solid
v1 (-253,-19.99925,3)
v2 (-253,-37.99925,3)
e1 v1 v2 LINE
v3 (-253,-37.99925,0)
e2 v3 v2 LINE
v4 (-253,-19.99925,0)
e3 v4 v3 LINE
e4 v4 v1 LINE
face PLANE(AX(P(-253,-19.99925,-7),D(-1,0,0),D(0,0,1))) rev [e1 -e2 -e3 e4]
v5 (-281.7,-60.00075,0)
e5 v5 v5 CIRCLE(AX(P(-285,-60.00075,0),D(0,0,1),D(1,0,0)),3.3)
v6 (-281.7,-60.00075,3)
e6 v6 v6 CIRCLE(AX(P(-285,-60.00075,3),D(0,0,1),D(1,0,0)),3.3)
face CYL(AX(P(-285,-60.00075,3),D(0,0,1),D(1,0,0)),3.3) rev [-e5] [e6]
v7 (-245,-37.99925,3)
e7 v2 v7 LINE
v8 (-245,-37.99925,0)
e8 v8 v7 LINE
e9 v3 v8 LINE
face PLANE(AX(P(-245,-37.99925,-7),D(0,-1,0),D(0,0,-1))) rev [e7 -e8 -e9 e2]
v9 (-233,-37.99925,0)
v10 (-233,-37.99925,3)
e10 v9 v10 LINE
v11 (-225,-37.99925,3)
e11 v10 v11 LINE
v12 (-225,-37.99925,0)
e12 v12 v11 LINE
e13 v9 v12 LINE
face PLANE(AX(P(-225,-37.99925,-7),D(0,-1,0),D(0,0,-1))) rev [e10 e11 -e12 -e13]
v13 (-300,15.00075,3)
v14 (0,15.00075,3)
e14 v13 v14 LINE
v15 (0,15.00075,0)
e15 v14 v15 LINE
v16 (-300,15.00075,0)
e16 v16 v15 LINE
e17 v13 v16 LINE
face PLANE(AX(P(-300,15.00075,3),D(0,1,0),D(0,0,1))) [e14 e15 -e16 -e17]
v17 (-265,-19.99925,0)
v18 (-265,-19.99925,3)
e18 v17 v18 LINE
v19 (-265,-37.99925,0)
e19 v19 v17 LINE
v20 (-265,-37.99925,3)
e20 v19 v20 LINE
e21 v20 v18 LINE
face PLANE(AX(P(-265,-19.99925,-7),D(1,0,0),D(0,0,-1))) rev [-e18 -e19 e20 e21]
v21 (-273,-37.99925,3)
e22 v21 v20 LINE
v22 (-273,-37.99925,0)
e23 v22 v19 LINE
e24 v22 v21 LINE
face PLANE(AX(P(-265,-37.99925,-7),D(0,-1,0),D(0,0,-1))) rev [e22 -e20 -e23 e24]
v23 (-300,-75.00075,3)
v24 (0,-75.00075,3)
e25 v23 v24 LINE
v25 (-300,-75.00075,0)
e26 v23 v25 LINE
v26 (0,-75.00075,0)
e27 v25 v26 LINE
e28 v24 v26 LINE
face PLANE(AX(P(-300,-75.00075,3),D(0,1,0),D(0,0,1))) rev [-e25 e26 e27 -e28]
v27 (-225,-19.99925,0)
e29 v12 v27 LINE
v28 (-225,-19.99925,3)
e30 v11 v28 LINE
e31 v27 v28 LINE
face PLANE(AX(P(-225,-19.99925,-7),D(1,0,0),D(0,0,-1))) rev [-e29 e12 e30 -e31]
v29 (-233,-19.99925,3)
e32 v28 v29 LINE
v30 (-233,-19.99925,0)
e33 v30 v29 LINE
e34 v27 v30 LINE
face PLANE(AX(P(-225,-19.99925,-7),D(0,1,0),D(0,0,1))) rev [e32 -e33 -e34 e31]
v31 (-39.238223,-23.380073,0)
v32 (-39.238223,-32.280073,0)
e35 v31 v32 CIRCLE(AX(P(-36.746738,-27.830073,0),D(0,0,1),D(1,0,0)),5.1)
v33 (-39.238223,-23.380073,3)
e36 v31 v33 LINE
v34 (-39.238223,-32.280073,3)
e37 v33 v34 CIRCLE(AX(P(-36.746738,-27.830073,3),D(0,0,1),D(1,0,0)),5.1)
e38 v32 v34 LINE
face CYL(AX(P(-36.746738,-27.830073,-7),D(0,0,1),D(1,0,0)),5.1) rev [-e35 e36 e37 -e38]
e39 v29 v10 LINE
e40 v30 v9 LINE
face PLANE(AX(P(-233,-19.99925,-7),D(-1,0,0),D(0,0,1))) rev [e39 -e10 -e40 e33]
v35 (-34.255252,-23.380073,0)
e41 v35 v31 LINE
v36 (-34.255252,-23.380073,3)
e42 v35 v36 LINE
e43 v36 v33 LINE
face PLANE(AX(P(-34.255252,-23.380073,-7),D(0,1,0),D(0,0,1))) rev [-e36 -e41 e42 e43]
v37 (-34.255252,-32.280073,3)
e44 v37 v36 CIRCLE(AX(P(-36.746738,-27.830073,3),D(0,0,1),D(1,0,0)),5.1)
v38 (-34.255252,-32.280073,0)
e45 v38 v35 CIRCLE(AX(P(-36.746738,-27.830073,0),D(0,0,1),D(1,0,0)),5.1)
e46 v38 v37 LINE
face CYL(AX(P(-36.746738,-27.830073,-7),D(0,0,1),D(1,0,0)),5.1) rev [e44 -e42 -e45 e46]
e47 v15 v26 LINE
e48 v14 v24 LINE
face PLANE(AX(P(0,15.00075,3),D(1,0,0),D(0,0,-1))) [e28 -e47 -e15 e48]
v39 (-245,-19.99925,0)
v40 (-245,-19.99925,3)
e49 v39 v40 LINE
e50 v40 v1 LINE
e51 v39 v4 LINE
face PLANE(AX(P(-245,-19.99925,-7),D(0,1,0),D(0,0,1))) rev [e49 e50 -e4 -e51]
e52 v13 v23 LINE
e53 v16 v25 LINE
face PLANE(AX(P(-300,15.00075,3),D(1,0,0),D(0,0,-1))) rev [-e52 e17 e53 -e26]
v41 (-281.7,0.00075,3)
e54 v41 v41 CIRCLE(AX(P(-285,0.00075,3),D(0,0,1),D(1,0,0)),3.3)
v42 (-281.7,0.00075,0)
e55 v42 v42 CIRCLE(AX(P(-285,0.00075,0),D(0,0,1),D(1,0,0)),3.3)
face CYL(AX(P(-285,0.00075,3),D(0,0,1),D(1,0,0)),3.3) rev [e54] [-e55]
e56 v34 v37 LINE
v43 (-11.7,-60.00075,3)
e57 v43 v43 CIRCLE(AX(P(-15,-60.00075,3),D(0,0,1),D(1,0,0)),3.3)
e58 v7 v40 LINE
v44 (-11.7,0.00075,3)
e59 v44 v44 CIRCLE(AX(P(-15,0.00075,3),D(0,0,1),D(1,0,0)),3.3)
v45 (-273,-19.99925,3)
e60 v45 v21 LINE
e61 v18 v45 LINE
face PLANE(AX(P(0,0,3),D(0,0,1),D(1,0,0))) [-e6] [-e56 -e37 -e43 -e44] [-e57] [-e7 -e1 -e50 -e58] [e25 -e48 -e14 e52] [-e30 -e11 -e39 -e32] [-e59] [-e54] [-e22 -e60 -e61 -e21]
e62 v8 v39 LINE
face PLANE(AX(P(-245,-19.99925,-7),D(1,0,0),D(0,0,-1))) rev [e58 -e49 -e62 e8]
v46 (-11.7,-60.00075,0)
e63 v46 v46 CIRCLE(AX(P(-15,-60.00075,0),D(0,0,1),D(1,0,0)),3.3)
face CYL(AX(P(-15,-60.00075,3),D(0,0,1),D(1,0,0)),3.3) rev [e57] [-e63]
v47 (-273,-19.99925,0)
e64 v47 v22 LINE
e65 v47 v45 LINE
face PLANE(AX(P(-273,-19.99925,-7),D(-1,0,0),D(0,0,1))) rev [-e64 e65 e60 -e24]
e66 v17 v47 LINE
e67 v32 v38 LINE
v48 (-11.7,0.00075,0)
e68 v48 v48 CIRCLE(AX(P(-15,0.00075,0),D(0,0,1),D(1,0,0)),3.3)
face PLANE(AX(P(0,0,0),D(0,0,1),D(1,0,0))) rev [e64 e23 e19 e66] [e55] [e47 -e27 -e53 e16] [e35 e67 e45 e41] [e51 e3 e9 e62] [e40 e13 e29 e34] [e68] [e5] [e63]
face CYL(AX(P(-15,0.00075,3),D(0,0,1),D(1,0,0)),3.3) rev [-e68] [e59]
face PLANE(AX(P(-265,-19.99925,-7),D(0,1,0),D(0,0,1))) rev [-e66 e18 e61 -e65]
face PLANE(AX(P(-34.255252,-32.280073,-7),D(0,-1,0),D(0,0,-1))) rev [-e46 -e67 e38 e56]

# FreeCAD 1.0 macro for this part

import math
import FreeCAD as App
import Part
import Sketcher

V = App.Vector
Q = App.Units.Quantity

doc = App.newDocument("Part")
params = doc.addObject("Spreadsheet::Sheet", "Params")
for row, (alias, value) in enumerate([
    ("sketch1_width", "300 mm"),
    ("pad1_length", "3 mm"),
    ("sketch2_diameter", "6.6 mm"),
    ("hole_diameter", "6.6 mm"),
    ("sketch3_width", "8 mm"),
    ("sketch3_height", "18 mm"),
    ("pocket1_length", "10 mm"),
    ("sketch4_radius", "5.1 mm"),
    ("pocket2_length", "10 mm"),
], start=1):
    params.set(f"A{row}", alias)
    params.set(f"B{row}", "=" + value)
    params.setAlias(f"B{row}", alias)

body = doc.addObject("PartDesign::Body", "Body")

# Sketch on XY plane
sketch1 = doc.addObject("Sketcher::SketchObject", "Sketch")
body.addObject(sketch1)
sketch1.AttachmentSupport = (doc.XY_Plane, [""])
sketch1.MapMode = "FlatFace"
sketch1.addGeometry([
    Part.LineSegment(V(-300, 15, 0), V(-300, -75, 0)),
    Part.LineSegment(V(-300, -75, 0), V(0, -75, 0)),
    Part.LineSegment(V(0, -75, 0), V(0, 15, 0)),
    Part.LineSegment(V(0, 15, 0), V(-300, 15, 0)),
], False)
sketch1.addConstraint([
    Sketcher.Constraint("Coincident", 0, 2, 1, 1),
    Sketcher.Constraint("Coincident", 1, 2, 2, 1),
    Sketcher.Constraint("Coincident", 2, 2, 3, 1),
    Sketcher.Constraint("Coincident", 3, 2, 0, 1),
    Sketcher.Constraint("Vertical", 0),
    Sketcher.Constraint("Horizontal", 1),
    Sketcher.Constraint("Vertical", 2),
    Sketcher.Constraint("Horizontal", 3),
    Sketcher.Constraint("PointOnObject", 1, 2, -2),
    Sketcher.Constraint("DistanceX", 1, 1, 1, 2, Q("300 mm")),
    Sketcher.Constraint("DistanceY", 0, 2, 0, 1, Q("90.0015 mm")),
    Sketcher.Constraint("DistanceY", 0, 2, -1, 1, Q("75.00075 mm")),
])
sketch1.setExpression("Constraints[9]", "Params.sketch1_width")
pad1 = doc.addObject("PartDesign::Pad", "Pad")
body.addObject(pad1)
pad1.Profile = sketch1
pad1.setExpression("Length", "Params.pad1_length")

# Sketch on XY plane
sketch2 = doc.addObject("Sketcher::SketchObject", "Sketch001")
body.addObject(sketch2)
sketch2.AttachmentSupport = (doc.XY_Plane, [""])
sketch2.MapMode = "FlatFace"
sketch2.AttachmentOffset = App.Placement(V(0, 0, 3), App.Rotation())
sketch2.addGeometry([
    Part.Circle(V(-15, 0, 0), V(0, 0, 1), 3.3),
    Part.Circle(V(-15, -60, 0), V(0, 0, 1), 3.3),
    Part.Circle(V(-285, -60, 0), V(0, 0, 1), 3.3),
    Part.Circle(V(-285, 0, 0), V(0, 0, 1), 3.3),
], False)
sketch2.addConstraint([
    Sketcher.Constraint("Equal", 0, 1),
    Sketcher.Constraint("Equal", 1, 2),
    Sketcher.Constraint("Equal", 2, 3),
    Sketcher.Constraint("Horizontal", 1, 3, 2, 3),
    Sketcher.Constraint("Horizontal", 0, 3, 3, 3),
    Sketcher.Constraint("Vertical", 0, 3, 1, 3),
    Sketcher.Constraint("Vertical", 2, 3, 3, 3),
    Sketcher.Constraint("Diameter", 0, Q("6.6 mm")),
    Sketcher.Constraint("DistanceX", 0, 3, -1, 1, Q("15 mm")),
    Sketcher.Constraint("DistanceX", 2, 3, -1, 1, Q("285 mm")),
    Sketcher.Constraint("DistanceY", 1, 3, 0, 3, Q("60.0015 mm")),
    Sketcher.Constraint("DistanceY", -1, 1, 0, 3, Q("0.00075 mm")),
])
sketch2.setExpression("Constraints[7]", "Params.sketch2_diameter")
doc.recompute()
hole = doc.addObject("PartDesign::Hole", "Hole")
body.addObject(hole)
hole.Profile = sketch2
hole.ThreadType = "None"
hole.setExpression("Diameter", "Params.hole_diameter")
hole.DepthType = "ThroughAll"

# Sketch on XY plane
sketch3 = doc.addObject("Sketcher::SketchObject", "Sketch002")
body.addObject(sketch3)
sketch3.AttachmentSupport = (doc.XY_Plane, [""])
sketch3.MapMode = "FlatFace"
sketch3.AttachmentOffset = App.Placement(V(0, 0, 3), App.Rotation())
sketch3.addGeometry([
    Part.LineSegment(V(-273, -20, 0), V(-273, -38, 0)),  # 0
    Part.LineSegment(V(-273, -38, 0), V(-265, -38, 0)),  # 1
    Part.LineSegment(V(-265, -38, 0), V(-265, -20, 0)),  # 2
    Part.LineSegment(V(-265, -20, 0), V(-273, -20, 0)),  # 3
    Part.LineSegment(V(-253, -20, 0), V(-253, -38, 0)),  # 4
    Part.LineSegment(V(-253, -38, 0), V(-245, -38, 0)),  # 5
    Part.LineSegment(V(-245, -38, 0), V(-245, -20, 0)),  # 6
    Part.LineSegment(V(-245, -20, 0), V(-253, -20, 0)),  # 7
    Part.LineSegment(V(-233, -20, 0), V(-233, -38, 0)),  # 8
    Part.LineSegment(V(-233, -38, 0), V(-225, -38, 0)),  # 9
    Part.LineSegment(V(-225, -38, 0), V(-225, -20, 0)),  # 10
    Part.LineSegment(V(-225, -20, 0), V(-233, -20, 0)),  # 11
], False)
sketch3.addConstraint([
    Sketcher.Constraint("Coincident", 0, 2, 1, 1),
    Sketcher.Constraint("Coincident", 1, 2, 2, 1),
    Sketcher.Constraint("Coincident", 2, 2, 3, 1),
    Sketcher.Constraint("Coincident", 3, 2, 0, 1),
    Sketcher.Constraint("Coincident", 4, 2, 5, 1),
    Sketcher.Constraint("Coincident", 5, 2, 6, 1),
    Sketcher.Constraint("Coincident", 6, 2, 7, 1),
    Sketcher.Constraint("Coincident", 7, 2, 4, 1),
    Sketcher.Constraint("Coincident", 8, 2, 9, 1),
    Sketcher.Constraint("Coincident", 9, 2, 10, 1),
    Sketcher.Constraint("Coincident", 10, 2, 11, 1),
    Sketcher.Constraint("Coincident", 11, 2, 8, 1),
    Sketcher.Constraint("Vertical", 0),
    Sketcher.Constraint("Horizontal", 1),
    Sketcher.Constraint("Vertical", 2),
    Sketcher.Constraint("Horizontal", 3),
    Sketcher.Constraint("Vertical", 4),
    Sketcher.Constraint("Horizontal", 5),
    Sketcher.Constraint("Vertical", 6),
    Sketcher.Constraint("Horizontal", 7),
    Sketcher.Constraint("Vertical", 8),
    Sketcher.Constraint("Horizontal", 9),
    Sketcher.Constraint("Vertical", 10),
    Sketcher.Constraint("Horizontal", 11),
    Sketcher.Constraint("Horizontal", 1, 2, 4, 2),
    Sketcher.Constraint("Horizontal", 3, 2, 6, 2),
    Sketcher.Constraint("Horizontal", 5, 2, 8, 2),
    Sketcher.Constraint("Horizontal", 7, 2, 10, 2),
    Sketcher.Constraint("Equal", 3, 5),
    Sketcher.Constraint("Equal", 7, 9),
    Sketcher.Constraint("DistanceX", 1, 1, 1, 2, Q("8 mm")),
    Sketcher.Constraint("DistanceY", 0, 2, 0, 1, Q("18 mm")),
    Sketcher.Constraint("DistanceX", 0, 2, -1, 1, Q("273 mm")),
    Sketcher.Constraint("DistanceX", 4, 2, -1, 1, Q("253 mm")),
    Sketcher.Constraint("DistanceX", 8, 2, -1, 1, Q("233 mm")),
    Sketcher.Constraint("DistanceY", 0, 2, -1, 1, Q("37.99925 mm")),
])
sketch3.setExpression("Constraints[30]", "Params.sketch3_width")
sketch3.setExpression("Constraints[31]", "Params.sketch3_height")
pocket1 = doc.addObject("PartDesign::Pocket", "Pocket")
body.addObject(pocket1)
pocket1.Profile = sketch3
pocket1.setExpression("Length", "Params.pocket1_length")

# Sketch on XY plane
sketch4 = doc.addObject("Sketcher::SketchObject", "Sketch003")
body.addObject(sketch4)
sketch4.AttachmentSupport = (doc.XY_Plane, [""])
sketch4.MapMode = "FlatFace"
sketch4.AttachmentOffset = App.Placement(V(0, 0, 3), App.Rotation())
sketch4.addGeometry([
    Part.LineSegment(V(-34.3, -23.4, 0), V(-39.2, -23.4, 0)),
    Part.ArcOfCircle(Part.Circle(V(-36.7, -27.8, 0), V(0, 0, 1), 5.1), math.radians(119), math.radians(241)),
    Part.LineSegment(V(-39.2, -32.3, 0), V(-34.3, -32.3, 0)),
    Part.ArcOfCircle(Part.Circle(V(-36.7, -27.8, 0), V(0, 0, 1), 5.1), math.radians(-61), math.radians(61)),
], False)
sketch4.addConstraint([
    Sketcher.Constraint("Coincident", 0, 2, 1, 1),
    Sketcher.Constraint("Coincident", 1, 2, 2, 1),
    Sketcher.Constraint("Coincident", 2, 2, 3, 1),
    Sketcher.Constraint("Coincident", 3, 2, 0, 1),
    Sketcher.Constraint("Horizontal", 0),
    Sketcher.Constraint("Horizontal", 2),
    Sketcher.Constraint("Coincident", 3, 3, 1, 3),
    Sketcher.Constraint("Equal", 1, 3),
    Sketcher.Constraint("Vertical", 0, 2, 1, 2),
    Sketcher.Constraint("Radius", 1, Q("5.1 mm")),
    Sketcher.Constraint("DistanceY", 1, 2, 0, 2, Q("8.9 mm")),
    Sketcher.Constraint("DistanceX", 1, 3, -1, 1, Q("36.746738 mm")),
    Sketcher.Constraint("DistanceY", 1, 3, -1, 1, Q("27.830073 mm")),
])
sketch4.setExpression("Constraints[9]", "Params.sketch4_radius")
pocket2 = doc.addObject("PartDesign::Pocket", "Pocket001")
body.addObject(pocket2)
pocket2.Profile = sketch4
pocket2.setExpression("Length", "Params.pocket2_length")

doc.recompute()
